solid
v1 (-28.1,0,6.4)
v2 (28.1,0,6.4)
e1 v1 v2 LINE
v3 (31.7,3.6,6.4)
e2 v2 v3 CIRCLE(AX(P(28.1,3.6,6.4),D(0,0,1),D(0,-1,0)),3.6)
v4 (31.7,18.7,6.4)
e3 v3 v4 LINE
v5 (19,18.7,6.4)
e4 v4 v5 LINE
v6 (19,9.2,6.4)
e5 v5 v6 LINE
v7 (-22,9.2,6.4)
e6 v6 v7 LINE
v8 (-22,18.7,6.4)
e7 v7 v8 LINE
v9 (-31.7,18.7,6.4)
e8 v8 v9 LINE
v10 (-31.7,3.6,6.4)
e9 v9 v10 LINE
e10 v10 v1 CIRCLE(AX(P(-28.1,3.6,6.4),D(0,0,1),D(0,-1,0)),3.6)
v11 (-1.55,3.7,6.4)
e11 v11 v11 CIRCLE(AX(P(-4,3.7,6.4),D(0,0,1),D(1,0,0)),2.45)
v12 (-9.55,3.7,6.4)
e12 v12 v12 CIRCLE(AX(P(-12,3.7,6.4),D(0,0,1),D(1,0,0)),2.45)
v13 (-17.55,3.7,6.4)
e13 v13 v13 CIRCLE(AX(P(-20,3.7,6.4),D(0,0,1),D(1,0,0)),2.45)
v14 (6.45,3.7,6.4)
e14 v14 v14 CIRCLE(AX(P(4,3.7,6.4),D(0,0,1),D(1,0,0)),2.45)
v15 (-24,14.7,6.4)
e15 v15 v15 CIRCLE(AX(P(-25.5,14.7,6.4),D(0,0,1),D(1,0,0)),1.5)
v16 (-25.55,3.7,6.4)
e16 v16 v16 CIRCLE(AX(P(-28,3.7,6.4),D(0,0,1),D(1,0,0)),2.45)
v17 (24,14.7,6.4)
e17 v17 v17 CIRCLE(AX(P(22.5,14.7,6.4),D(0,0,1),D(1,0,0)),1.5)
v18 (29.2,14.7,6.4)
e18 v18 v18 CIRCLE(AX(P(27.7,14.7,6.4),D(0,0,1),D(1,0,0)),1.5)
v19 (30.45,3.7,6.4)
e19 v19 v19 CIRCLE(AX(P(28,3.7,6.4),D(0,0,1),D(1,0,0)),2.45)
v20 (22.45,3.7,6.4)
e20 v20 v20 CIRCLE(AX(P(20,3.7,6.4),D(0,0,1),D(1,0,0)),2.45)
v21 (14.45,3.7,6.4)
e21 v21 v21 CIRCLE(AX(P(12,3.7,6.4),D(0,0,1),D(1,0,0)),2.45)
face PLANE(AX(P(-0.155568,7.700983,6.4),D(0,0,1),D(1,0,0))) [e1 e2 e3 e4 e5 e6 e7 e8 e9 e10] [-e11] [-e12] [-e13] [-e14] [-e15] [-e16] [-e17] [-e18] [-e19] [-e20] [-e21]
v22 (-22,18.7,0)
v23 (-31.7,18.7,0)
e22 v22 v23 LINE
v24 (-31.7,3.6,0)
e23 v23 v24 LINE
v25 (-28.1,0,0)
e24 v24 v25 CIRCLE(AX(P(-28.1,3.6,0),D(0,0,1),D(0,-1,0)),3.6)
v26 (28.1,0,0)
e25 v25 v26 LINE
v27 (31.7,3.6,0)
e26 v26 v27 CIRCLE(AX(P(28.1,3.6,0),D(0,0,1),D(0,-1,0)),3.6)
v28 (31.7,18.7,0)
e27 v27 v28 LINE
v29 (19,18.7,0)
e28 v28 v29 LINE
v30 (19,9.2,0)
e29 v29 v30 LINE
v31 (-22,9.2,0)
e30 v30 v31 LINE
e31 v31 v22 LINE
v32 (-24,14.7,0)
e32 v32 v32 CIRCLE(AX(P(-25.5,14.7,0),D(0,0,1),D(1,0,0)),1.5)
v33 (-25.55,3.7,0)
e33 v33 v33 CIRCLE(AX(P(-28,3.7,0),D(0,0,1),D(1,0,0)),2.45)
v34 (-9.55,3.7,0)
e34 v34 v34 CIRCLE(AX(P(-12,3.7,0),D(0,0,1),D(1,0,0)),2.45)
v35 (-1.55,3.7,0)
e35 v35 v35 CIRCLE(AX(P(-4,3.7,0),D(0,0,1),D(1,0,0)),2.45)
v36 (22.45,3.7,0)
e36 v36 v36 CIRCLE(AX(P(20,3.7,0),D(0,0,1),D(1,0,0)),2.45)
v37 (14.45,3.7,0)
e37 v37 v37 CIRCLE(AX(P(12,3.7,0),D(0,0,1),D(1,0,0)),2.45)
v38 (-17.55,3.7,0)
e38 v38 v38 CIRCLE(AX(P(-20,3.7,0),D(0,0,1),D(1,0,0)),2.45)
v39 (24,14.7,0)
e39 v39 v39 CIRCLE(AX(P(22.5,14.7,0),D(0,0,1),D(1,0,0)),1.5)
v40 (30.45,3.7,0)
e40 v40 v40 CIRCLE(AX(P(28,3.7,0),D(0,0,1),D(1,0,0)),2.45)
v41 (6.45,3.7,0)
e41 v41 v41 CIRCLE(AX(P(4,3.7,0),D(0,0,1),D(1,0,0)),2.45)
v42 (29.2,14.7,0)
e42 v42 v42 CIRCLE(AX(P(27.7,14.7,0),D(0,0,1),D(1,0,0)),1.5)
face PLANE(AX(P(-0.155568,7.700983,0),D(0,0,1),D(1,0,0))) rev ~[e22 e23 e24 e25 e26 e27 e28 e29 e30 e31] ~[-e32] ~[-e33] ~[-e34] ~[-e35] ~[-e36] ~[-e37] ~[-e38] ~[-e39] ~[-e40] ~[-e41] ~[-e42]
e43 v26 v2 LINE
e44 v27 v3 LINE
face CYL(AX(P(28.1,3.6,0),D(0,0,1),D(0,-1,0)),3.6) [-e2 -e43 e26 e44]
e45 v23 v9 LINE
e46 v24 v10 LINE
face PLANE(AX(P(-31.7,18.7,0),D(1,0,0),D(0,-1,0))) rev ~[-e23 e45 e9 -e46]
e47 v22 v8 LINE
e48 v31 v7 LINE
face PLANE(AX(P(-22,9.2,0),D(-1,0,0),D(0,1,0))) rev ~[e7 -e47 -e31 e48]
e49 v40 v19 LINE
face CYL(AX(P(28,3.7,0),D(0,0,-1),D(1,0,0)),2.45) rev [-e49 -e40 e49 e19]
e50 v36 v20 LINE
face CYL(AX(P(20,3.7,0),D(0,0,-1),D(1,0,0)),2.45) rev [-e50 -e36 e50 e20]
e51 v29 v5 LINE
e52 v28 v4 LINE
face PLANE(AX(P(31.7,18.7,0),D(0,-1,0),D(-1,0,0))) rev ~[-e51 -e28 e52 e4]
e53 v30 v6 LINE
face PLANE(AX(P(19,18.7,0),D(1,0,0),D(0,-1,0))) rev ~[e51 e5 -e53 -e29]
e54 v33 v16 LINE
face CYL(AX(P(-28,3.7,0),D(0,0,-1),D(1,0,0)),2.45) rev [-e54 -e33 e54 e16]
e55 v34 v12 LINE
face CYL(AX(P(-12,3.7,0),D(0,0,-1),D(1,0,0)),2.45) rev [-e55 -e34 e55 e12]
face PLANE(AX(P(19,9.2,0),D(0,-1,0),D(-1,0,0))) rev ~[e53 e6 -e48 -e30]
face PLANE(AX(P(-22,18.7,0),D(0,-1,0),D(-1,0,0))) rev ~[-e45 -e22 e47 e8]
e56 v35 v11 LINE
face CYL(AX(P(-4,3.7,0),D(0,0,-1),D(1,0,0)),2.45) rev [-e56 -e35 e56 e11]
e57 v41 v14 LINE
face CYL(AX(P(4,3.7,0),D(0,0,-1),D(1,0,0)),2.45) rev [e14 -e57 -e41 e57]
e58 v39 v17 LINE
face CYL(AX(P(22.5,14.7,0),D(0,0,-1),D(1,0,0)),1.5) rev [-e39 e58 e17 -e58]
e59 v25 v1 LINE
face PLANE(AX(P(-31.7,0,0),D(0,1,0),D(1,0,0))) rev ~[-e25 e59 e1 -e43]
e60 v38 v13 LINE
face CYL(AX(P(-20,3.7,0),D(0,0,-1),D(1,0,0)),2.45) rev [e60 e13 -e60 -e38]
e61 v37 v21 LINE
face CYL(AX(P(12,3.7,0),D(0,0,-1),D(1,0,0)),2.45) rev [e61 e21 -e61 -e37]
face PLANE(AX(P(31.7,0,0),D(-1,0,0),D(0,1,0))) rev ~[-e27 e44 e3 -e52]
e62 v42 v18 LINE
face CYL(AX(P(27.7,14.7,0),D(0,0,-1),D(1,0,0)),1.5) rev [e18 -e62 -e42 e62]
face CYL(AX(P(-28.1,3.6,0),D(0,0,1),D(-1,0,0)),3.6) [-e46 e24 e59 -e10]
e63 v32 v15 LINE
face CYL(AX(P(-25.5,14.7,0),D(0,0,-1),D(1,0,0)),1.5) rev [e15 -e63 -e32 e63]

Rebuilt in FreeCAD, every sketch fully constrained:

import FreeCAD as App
import Part
import Sketcher
Q = App.Units.Quantity


def edges_at(feature, points):
    """Names of the edges that pass closest to the given points."""
    edges = feature.Shape.Edges
    near = lambda p: min(range(len(edges)), key=lambda i: edges[i].distToShape(Part.Vertex(*p))[0])
    return sorted({f"Edge{near(p) + 1}" for p in points})

doc = App.newDocument("Part")
body = doc.addObject("PartDesign::Body", "Body")

# Sketch on XY plane
sketch1 = body.newObject("Sketcher::SketchObject", "Sketch")
sketch1.AttachmentSupport = (doc.getObject("XY_Plane"), [""])
sketch1.MapMode = "FlatFace"
sketch1.addGeometry([
    Part.LineSegment(App.Vector(-22, 18.7, 0), App.Vector(-31.7, 18.7, 0)),  # 0
    Part.LineSegment(App.Vector(-31.7, 18.7, 0), App.Vector(-31.7, 0, 0)),  # 1
    Part.LineSegment(App.Vector(-31.7, 0, 0), App.Vector(31.7, 0, 0)),  # 2
    Part.LineSegment(App.Vector(31.7, 0, 0), App.Vector(31.7, 18.7, 0)),  # 3
    Part.LineSegment(App.Vector(31.7, 18.7, 0), App.Vector(19, 18.7, 0)),  # 4
    Part.LineSegment(App.Vector(19, 18.7, 0), App.Vector(19, 9.2, 0)),  # 5
    Part.LineSegment(App.Vector(19, 9.2, 0), App.Vector(-22, 9.2, 0)),  # 6
    Part.LineSegment(App.Vector(-22, 9.2, 0), App.Vector(-22, 18.7, 0)),  # 7
    Part.Circle(App.Vector(-28, 3.7, 0), App.Vector(0, 0, 1), 2.45),  # 8
    Part.Circle(App.Vector(-20, 3.7, 0), App.Vector(0, 0, 1), 2.45),  # 9
    Part.Circle(App.Vector(-12, 3.7, 0), App.Vector(0, 0, 1), 2.45),  # 10
    Part.Circle(App.Vector(-4, 3.7, 0), App.Vector(0, 0, 1), 2.45),  # 11
    Part.Circle(App.Vector(4, 3.7, 0), App.Vector(0, 0, 1), 2.45),  # 12
    Part.Circle(App.Vector(12, 3.7, 0), App.Vector(0, 0, 1), 2.45),  # 13
    Part.Circle(App.Vector(20, 3.7, 0), App.Vector(0, 0, 1), 2.45),  # 14
    Part.Circle(App.Vector(28, 3.7, 0), App.Vector(0, 0, 1), 2.45),  # 15
    Part.Circle(App.Vector(-25.5, 14.7, 0), App.Vector(0, 0, 1), 1.5),  # 16
    Part.Circle(App.Vector(22.5, 14.7, 0), App.Vector(0, 0, 1), 1.5),  # 17
    Part.Circle(App.Vector(27.7, 14.7, 0), App.Vector(0, 0, 1), 1.5),  # 18
], False)
sketch1.addConstraint([
    Sketcher.Constraint("Coincident", 0, 2, 1, 1),
    Sketcher.Constraint("Coincident", 1, 2, 2, 1),
    Sketcher.Constraint("Coincident", 2, 2, 3, 1),
    Sketcher.Constraint("Coincident", 3, 2, 4, 1),
    Sketcher.Constraint("Coincident", 4, 2, 5, 1),
    Sketcher.Constraint("Coincident", 5, 2, 6, 1),
    Sketcher.Constraint("Coincident", 6, 2, 7, 1),
    Sketcher.Constraint("Coincident", 7, 2, 0, 1),
    Sketcher.Constraint("Horizontal", 0),
    Sketcher.Constraint("Vertical", 1),
    Sketcher.Constraint("Horizontal", 2),
    Sketcher.Constraint("Vertical", 3),
    Sketcher.Constraint("Horizontal", 4),
    Sketcher.Constraint("Vertical", 5),
    Sketcher.Constraint("Horizontal", 6),
    Sketcher.Constraint("Vertical", 7),
    Sketcher.Constraint("Equal", 8, 9),
    Sketcher.Constraint("Equal", 9, 10),
    Sketcher.Constraint("Equal", 10, 11),
    Sketcher.Constraint("Equal", 11, 12),
    Sketcher.Constraint("Equal", 12, 13),
    Sketcher.Constraint("Equal", 13, 14),
    Sketcher.Constraint("Equal", 14, 15),
    Sketcher.Constraint("Equal", 16, 17),
    Sketcher.Constraint("Equal", 17, 18),
    Sketcher.Constraint("Symmetric", 1, 2, 2, 2, -1, 1),
    Sketcher.Constraint("Symmetric", 11, 3, 12, 3, -2),
    Sketcher.Constraint("Symmetric", 10, 3, 13, 3, -2),
    Sketcher.Constraint("Symmetric", 9, 3, 14, 3, -2),
    Sketcher.Constraint("Symmetric", 8, 3, 15, 3, -2),
    Sketcher.Constraint("Horizontal", 8, 3, 9, 3),
    Sketcher.Constraint("Horizontal", 9, 3, 10, 3),
    Sketcher.Constraint("Horizontal", 10, 3, 11, 3),
    Sketcher.Constraint("Horizontal", 16, 3, 17, 3),
    Sketcher.Constraint("Horizontal", 17, 3, 18, 3),
    Sketcher.Constraint("Horizontal", 0, 2, 3, 2),
    Sketcher.Constraint("Diameter", 16, Q("3 mm")),
    Sketcher.Constraint("Diameter", 8, Q("4.9 mm")),
    Sketcher.Constraint("DistanceX", 6, 2, 6, 1, Q("41 mm")),
    Sketcher.Constraint("DistanceX", 0, 2, 0, 1, Q("9.7 mm")),
    Sketcher.Constraint("DistanceX", 2, 1, 2, 2, Q("63.4 mm")),
    Sketcher.Constraint("DistanceY", 1, 2, 1, 1, Q("18.7 mm")),
    Sketcher.Constraint("DistanceY", 5, 2, 5, 1, Q("9.5 mm")),
    Sketcher.Constraint("DistanceX", 8, 3, -1, 1, Q("28 mm")),
    Sketcher.Constraint("DistanceX", 9, 3, -1, 1, Q("20 mm")),
    Sketcher.Constraint("DistanceX", 10, 3, -1, 1, Q("12 mm")),
    Sketcher.Constraint("DistanceX", 11, 3, -1, 1, Q("4 mm")),
    Sketcher.Constraint("DistanceY", 8, 3, 16, 3, Q("11 mm")),
    Sketcher.Constraint("DistanceY", 16, 3, 0, 2, Q("4 mm")),
    Sketcher.Constraint("DistanceX", 18, 3, 2, 2, Q("4 mm")),
    Sketcher.Constraint("DistanceX", 16, 3, -1, 1, Q("25.5 mm")),
    Sketcher.Constraint("DistanceX", -1, 1, 17, 3, Q("22.5 mm")),
])
pad1 = body.newObject("PartDesign::Pad", "Pad")
pad1.Profile = sketch1
pad1.Length = 6.4
doc.recompute()

fillet = body.newObject("PartDesign::Fillet", "Fillet")
fillet.Base = (pad1, edges_at(pad1, [(-31.7, 0, 3.2), (31.7, 0, 3.2)]))
fillet.Radius = 3.6

doc.recompute()
